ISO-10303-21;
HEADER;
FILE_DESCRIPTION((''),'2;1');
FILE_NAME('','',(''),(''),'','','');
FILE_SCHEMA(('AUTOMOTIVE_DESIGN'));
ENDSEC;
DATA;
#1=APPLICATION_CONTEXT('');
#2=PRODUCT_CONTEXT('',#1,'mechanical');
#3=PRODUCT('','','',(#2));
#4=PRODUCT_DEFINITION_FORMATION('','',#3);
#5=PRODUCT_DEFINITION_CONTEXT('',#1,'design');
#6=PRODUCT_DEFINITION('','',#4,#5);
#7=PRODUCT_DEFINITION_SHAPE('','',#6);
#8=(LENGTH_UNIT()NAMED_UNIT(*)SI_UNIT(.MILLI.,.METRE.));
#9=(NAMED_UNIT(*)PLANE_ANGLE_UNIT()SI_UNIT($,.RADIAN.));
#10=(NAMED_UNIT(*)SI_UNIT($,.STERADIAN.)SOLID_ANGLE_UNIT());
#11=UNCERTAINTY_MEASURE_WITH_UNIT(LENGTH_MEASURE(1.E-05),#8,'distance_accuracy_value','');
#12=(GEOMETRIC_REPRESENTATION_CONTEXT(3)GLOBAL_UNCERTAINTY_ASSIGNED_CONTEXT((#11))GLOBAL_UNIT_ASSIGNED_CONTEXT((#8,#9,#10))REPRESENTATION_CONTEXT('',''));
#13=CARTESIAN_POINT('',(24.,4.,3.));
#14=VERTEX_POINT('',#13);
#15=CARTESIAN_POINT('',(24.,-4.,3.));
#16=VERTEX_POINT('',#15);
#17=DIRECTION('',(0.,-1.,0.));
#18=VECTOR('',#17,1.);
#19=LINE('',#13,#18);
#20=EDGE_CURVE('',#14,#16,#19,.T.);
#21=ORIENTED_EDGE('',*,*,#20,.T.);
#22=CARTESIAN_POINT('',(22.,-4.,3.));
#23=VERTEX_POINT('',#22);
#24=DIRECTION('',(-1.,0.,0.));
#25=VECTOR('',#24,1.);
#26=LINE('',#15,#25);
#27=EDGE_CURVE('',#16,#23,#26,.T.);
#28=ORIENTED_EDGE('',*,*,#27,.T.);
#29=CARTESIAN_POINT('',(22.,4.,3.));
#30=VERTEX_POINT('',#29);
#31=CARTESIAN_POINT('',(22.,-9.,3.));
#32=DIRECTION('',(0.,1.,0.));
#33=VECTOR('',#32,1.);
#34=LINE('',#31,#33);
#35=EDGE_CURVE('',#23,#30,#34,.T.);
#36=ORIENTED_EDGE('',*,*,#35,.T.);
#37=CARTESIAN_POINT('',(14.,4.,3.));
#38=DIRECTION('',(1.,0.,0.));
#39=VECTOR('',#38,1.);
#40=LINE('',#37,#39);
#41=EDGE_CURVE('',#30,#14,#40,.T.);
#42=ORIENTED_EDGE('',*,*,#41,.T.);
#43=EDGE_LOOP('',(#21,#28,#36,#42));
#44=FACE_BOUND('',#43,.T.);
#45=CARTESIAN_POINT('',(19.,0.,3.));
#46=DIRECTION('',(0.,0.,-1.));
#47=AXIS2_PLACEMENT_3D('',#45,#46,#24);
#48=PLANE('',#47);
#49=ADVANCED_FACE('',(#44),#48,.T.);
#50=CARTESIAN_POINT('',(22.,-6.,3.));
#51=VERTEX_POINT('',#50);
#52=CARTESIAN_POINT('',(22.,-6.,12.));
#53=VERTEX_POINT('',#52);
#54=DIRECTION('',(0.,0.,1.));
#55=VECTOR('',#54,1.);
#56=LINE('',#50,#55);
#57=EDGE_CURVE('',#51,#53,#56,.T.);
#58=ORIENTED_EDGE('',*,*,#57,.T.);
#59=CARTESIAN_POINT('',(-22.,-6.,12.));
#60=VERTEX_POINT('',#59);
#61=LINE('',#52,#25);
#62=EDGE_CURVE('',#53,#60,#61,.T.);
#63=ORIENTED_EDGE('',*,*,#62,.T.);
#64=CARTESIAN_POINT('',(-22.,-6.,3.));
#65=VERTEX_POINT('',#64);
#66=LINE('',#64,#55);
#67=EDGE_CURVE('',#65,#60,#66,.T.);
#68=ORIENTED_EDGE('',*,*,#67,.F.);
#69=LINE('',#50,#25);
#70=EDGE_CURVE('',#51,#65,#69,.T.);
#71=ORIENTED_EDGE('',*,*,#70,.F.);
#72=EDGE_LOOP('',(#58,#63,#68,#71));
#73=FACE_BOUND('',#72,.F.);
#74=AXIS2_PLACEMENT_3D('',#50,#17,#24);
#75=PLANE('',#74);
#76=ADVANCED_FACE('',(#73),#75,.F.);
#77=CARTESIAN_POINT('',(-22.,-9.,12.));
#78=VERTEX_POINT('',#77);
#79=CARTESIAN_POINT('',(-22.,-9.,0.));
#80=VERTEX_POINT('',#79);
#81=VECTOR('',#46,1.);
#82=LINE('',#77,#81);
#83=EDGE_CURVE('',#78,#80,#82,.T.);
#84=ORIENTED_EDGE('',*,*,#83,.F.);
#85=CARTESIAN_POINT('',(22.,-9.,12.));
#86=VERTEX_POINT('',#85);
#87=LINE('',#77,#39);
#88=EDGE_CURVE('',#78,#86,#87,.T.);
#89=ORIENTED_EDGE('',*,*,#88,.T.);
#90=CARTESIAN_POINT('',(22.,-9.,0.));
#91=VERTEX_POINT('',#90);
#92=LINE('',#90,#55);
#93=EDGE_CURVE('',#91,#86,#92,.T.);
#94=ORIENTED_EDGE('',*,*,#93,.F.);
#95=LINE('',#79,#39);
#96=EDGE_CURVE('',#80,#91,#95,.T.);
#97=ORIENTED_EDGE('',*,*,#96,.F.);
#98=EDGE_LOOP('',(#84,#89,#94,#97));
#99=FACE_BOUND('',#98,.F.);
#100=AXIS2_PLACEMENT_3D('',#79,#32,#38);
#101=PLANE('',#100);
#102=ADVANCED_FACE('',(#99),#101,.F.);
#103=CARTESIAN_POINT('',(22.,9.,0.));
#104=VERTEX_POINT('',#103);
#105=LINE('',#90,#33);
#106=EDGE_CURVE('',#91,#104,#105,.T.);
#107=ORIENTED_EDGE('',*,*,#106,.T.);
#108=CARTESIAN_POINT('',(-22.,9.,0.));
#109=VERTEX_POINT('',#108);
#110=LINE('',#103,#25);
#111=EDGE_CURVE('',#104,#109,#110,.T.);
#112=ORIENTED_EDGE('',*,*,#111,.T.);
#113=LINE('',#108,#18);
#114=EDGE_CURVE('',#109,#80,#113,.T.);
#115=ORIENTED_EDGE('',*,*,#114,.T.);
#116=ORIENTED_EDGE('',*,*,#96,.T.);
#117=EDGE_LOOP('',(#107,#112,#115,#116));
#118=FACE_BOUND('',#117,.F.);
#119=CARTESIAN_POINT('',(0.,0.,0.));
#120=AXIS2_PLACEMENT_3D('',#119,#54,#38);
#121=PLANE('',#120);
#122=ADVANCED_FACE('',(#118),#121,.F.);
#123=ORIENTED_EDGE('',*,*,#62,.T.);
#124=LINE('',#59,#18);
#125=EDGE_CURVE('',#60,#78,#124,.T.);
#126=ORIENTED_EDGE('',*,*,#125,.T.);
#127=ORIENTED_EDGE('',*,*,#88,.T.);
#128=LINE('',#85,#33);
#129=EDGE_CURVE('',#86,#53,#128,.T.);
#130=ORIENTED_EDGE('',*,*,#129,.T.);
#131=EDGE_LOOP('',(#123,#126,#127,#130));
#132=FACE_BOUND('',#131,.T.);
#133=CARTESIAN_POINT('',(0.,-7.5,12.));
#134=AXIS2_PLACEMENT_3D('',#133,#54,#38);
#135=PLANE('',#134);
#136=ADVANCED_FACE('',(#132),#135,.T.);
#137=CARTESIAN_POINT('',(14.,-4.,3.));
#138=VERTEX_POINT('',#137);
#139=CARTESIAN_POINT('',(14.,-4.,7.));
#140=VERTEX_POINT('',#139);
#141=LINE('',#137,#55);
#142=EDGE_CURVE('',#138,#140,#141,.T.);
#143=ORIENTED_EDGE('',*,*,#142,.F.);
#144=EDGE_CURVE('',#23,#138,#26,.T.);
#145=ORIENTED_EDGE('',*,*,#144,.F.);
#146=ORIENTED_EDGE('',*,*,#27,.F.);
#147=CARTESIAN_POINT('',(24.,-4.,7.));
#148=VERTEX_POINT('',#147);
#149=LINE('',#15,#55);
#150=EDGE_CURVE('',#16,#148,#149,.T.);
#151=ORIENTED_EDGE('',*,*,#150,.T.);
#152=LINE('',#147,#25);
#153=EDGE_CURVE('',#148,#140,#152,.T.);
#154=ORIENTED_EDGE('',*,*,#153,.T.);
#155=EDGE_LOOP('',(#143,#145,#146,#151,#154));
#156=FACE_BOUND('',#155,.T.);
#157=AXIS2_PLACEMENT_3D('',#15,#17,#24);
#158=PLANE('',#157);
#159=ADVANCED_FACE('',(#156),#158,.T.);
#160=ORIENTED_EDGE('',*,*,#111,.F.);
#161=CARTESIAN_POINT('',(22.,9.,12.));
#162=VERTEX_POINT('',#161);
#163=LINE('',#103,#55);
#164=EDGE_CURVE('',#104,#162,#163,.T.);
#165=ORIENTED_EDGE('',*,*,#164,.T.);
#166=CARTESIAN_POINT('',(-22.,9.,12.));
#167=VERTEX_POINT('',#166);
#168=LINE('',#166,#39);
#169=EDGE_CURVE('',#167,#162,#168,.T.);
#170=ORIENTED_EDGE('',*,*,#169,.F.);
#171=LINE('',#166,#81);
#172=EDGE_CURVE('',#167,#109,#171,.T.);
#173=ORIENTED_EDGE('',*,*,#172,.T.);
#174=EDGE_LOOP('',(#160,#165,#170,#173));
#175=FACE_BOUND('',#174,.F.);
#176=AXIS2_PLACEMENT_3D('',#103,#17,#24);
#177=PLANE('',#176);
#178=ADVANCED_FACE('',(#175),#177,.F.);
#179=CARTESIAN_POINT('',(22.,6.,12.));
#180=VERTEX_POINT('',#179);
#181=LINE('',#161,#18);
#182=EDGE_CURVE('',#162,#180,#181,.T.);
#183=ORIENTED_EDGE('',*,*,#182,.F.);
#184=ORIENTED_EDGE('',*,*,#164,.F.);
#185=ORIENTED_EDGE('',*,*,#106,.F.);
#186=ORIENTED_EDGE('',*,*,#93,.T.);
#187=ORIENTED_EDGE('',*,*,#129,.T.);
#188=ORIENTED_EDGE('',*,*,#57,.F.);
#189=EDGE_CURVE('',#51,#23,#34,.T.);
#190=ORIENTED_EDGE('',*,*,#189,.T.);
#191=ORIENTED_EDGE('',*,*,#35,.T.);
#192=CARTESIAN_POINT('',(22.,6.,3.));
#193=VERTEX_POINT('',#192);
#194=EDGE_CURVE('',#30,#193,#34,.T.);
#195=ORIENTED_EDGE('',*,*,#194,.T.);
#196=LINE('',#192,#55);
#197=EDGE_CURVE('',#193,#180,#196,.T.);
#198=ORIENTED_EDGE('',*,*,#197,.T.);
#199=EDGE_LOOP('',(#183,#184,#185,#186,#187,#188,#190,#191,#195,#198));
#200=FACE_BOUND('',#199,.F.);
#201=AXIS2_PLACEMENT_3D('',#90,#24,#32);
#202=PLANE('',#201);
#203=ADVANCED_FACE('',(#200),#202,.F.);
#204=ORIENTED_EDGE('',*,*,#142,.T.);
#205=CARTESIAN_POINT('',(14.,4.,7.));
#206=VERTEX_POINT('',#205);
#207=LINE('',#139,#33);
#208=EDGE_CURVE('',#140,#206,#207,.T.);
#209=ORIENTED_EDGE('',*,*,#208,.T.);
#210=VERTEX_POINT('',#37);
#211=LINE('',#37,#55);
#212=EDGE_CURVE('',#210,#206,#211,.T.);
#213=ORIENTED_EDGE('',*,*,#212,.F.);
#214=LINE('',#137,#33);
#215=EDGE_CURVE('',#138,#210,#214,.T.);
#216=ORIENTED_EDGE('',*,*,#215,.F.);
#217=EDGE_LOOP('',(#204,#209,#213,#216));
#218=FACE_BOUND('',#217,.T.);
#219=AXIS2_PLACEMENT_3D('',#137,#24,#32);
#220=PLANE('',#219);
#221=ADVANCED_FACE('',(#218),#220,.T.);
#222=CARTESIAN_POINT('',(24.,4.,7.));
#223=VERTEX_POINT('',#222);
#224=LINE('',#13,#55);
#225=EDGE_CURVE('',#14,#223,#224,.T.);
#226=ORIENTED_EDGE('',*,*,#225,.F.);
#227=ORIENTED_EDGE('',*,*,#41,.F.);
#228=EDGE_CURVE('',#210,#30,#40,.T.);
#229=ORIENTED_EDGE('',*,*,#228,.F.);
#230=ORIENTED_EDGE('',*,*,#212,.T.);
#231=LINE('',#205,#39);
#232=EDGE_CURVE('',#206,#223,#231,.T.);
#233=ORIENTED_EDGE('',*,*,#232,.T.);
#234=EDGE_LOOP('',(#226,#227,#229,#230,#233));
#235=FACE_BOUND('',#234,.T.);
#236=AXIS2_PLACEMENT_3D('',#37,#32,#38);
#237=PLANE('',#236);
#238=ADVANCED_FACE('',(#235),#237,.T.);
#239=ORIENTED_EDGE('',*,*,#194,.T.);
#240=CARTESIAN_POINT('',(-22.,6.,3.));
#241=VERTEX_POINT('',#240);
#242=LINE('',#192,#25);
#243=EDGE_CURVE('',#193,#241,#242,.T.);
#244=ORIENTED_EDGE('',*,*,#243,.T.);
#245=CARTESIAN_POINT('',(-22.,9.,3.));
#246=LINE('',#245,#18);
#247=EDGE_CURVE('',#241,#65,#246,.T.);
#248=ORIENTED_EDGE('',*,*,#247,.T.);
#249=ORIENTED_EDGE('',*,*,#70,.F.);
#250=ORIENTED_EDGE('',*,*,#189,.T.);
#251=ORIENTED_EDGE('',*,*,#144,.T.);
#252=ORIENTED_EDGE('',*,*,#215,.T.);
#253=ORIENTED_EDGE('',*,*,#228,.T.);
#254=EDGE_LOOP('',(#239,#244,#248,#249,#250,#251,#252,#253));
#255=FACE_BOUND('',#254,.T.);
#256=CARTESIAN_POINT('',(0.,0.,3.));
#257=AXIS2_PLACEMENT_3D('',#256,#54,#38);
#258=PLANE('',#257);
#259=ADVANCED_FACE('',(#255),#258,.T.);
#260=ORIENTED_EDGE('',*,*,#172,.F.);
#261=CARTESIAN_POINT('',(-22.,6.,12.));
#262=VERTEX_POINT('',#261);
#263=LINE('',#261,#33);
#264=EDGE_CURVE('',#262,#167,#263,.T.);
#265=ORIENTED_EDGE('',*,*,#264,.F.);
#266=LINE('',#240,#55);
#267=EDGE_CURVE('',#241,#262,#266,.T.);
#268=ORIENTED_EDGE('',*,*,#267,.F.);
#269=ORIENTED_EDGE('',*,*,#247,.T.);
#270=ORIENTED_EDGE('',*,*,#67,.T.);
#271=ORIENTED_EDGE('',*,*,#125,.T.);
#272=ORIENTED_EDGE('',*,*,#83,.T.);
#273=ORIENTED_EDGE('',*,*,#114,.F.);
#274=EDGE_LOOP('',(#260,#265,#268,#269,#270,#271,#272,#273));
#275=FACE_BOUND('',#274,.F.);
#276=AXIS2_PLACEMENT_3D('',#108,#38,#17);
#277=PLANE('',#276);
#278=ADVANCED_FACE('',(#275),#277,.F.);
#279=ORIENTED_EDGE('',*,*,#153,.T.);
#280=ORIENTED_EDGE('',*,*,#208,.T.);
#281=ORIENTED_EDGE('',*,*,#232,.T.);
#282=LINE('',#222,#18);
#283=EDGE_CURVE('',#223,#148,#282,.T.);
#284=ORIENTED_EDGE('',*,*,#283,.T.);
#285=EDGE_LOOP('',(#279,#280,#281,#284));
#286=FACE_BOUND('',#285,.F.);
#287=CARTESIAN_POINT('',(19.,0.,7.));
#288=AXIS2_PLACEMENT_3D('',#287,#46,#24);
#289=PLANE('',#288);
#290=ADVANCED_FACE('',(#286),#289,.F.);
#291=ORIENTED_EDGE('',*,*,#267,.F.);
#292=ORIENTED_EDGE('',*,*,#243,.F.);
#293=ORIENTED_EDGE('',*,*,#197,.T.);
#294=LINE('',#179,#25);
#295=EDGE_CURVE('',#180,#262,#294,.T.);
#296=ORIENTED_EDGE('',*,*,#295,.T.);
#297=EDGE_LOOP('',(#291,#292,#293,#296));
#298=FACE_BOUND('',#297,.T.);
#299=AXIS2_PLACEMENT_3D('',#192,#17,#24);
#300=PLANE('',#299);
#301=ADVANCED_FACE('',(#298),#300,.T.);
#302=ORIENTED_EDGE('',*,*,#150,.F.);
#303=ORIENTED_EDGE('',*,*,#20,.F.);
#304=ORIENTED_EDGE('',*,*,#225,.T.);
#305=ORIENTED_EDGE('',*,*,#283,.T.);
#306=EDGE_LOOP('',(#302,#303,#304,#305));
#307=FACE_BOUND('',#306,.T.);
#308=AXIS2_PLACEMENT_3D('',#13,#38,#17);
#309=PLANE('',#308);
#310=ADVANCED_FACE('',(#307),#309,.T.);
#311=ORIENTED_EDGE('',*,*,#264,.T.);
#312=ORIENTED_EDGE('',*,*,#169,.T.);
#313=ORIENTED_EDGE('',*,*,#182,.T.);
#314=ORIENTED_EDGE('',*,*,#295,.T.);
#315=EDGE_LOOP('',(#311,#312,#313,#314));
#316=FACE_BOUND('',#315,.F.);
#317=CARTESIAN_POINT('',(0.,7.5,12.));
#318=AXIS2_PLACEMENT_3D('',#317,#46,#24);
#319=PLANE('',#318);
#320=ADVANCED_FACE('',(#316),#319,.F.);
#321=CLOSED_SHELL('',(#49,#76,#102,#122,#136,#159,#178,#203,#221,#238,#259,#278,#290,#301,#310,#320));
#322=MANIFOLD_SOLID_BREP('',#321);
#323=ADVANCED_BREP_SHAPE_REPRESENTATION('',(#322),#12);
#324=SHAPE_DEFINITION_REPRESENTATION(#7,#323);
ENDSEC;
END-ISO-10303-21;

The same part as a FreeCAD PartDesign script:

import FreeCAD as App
import Part
import Sketcher

V = App.Vector


def add_polygon(sketch, points):
    """Adds a closed chain of lines whose ends are joined by coincident constraints."""
    first, n = sketch.GeometryCount, len(points)
    for a, b in zip(points, points[1:] + points[:1]):
        sketch.addGeometry(Part.LineSegment(App.Vector(*a, 0), App.Vector(*b, 0)), False)
    for i in range(n):
        sketch.addConstraint(Sketcher.Constraint("Coincident", first + i, 2, first + (i + 1) % n, 1))

doc = App.newDocument("Part")
params = doc.addObject("Spreadsheet::Sheet", "Params")
for row, (alias, value) in enumerate([
    ("sketch1_width", "44 mm"),
    ("sketch1_height", "18 mm"),
    ("pad1_length", "3 mm"),
    ("sketch2_width", "10 mm"),
    ("sketch2_height", "8 mm"),
    ("pad2_length", "4 mm"),
    ("sketch3_width", "44 mm"),
    ("sketch3_height", "3 mm"),
    ("pad3_length", "9 mm"),
], start=1):
    params.set(f"A{row}", alias)
    params.set(f"B{row}", "=" + value)
    params.setAlias(f"B{row}", alias)

body = doc.addObject("PartDesign::Body", "Body")

# Sketch on XY plane
sketch1 = doc.addObject("Sketcher::SketchObject", "Sketch")
body.addObject(sketch1)
sketch1.AttachmentSupport = (doc.XY_Plane, [""])
sketch1.MapMode = "FlatFace"
add_polygon(sketch1, [(-22, 9), (-22, -9), (22, -9), (22, 9)])  # lines 0-3
sketch1.addConstraint(Sketcher.Constraint("Vertical", 0))
sketch1.addConstraint(Sketcher.Constraint("Horizontal", 1))
sketch1.addConstraint(Sketcher.Constraint("Vertical", 2))
sketch1.addConstraint(Sketcher.Constraint("Horizontal", 3))
sketch1.addConstraint(Sketcher.Constraint("Symmetric", 0, 2, 2, 2, -1, 1))
sketch1.addConstraint(Sketcher.Constraint("DistanceX", 1, 1, 1, 2, 44.0))
sketch1.addConstraint(Sketcher.Constraint("DistanceY", 0, 2, 0, 1, 18.0))
sketch1.setExpression("Constraints[9]", "Params.sketch1_width")
sketch1.setExpression("Constraints[10]", "Params.sketch1_height")
pad1 = doc.addObject("PartDesign::Pad", "Pad")
body.addObject(pad1)
pad1.Profile = sketch1
pad1.setExpression("Length", "Params.pad1_length")

# Sketch on XY plane
sketch2 = doc.addObject("Sketcher::SketchObject", "Sketch001")
body.addObject(sketch2)
sketch2.AttachmentSupport = (doc.XY_Plane, [""])
sketch2.MapMode = "FlatFace"
sketch2.AttachmentOffset = App.Placement(V(0, 0, 3), App.Rotation())
add_polygon(sketch2, [(14, -4), (24, -4), (24, 4), (14, 4)])  # lines 0-3
sketch2.addConstraint(Sketcher.Constraint("Horizontal", 0))
sketch2.addConstraint(Sketcher.Constraint("Vertical", 1))
sketch2.addConstraint(Sketcher.Constraint("Horizontal", 2))
sketch2.addConstraint(Sketcher.Constraint("Vertical", 3))
sketch2.addConstraint(Sketcher.Constraint("DistanceX", 0, 1, 0, 2, 10.0))
sketch2.addConstraint(Sketcher.Constraint("DistanceY", 1, 1, 1, 2, 8.0))
sketch2.addConstraint(Sketcher.Constraint("DistanceX", -1, 1, 0, 2, 24.0))
sketch2.addConstraint(Sketcher.Constraint("DistanceY", 0, 2, -1, 1, 4.0))
sketch2.setExpression("Constraints[8]", "Params.sketch2_width")
sketch2.setExpression("Constraints[9]", "Params.sketch2_height")
pad2 = doc.addObject("PartDesign::Pad", "Pad001")
body.addObject(pad2)
pad2.Profile = sketch2
pad2.setExpression("Length", "Params.pad2_length")

# Sketch on XY plane
sketch3 = doc.addObject("Sketcher::SketchObject", "Sketch002")
body.addObject(sketch3)
sketch3.AttachmentSupport = (doc.XY_Plane, [""])
sketch3.MapMode = "FlatFace"
sketch3.AttachmentOffset = App.Placement(V(0, 0, 3), App.Rotation())
add_polygon(sketch3, [(-22, -6), (-22, -9), (22, -9), (22, -6)])  # lines 0-3
add_polygon(sketch3, [(-22, 6), (22, 6), (22, 9), (-22, 9)])  # lines 4-7
sketch3.addConstraint(Sketcher.Constraint("Vertical", 0))
sketch3.addConstraint(Sketcher.Constraint("Horizontal", 1))
sketch3.addConstraint(Sketcher.Constraint("Vertical", 2))
sketch3.addConstraint(Sketcher.Constraint("Horizontal", 3))
sketch3.addConstraint(Sketcher.Constraint("Horizontal", 4))
sketch3.addConstraint(Sketcher.Constraint("Vertical", 5))
sketch3.addConstraint(Sketcher.Constraint("Horizontal", 6))
sketch3.addConstraint(Sketcher.Constraint("Vertical", 7))
sketch3.addConstraint(Sketcher.Constraint("Symmetric", 3, 2, 4, 2, -1, 1))
sketch3.addConstraint(Sketcher.Constraint("Symmetric", 1, 2, 6, 2, -1, 1))
sketch3.addConstraint(Sketcher.Constraint("Vertical", 2, 2, 4, 2))
sketch3.addConstraint(Sketcher.Constraint("DistanceX", 1, 1, 1, 2, 44.0))
sketch3.addConstraint(Sketcher.Constraint("DistanceY", 0, 2, 0, 1, 3.0))
sketch3.addConstraint(Sketcher.Constraint("DistanceY", 0, 2, -1, 1, 9.0))
sketch3.setExpression("Constraints[19]", "Params.sketch3_width")
sketch3.setExpression("Constraints[20]", "Params.sketch3_height")
pad3 = doc.addObject("PartDesign::Pad", "Pad002")
body.addObject(pad3)
pad3.Profile = sketch3
pad3.setExpression("Length", "Params.pad3_length")

doc.recompute()
